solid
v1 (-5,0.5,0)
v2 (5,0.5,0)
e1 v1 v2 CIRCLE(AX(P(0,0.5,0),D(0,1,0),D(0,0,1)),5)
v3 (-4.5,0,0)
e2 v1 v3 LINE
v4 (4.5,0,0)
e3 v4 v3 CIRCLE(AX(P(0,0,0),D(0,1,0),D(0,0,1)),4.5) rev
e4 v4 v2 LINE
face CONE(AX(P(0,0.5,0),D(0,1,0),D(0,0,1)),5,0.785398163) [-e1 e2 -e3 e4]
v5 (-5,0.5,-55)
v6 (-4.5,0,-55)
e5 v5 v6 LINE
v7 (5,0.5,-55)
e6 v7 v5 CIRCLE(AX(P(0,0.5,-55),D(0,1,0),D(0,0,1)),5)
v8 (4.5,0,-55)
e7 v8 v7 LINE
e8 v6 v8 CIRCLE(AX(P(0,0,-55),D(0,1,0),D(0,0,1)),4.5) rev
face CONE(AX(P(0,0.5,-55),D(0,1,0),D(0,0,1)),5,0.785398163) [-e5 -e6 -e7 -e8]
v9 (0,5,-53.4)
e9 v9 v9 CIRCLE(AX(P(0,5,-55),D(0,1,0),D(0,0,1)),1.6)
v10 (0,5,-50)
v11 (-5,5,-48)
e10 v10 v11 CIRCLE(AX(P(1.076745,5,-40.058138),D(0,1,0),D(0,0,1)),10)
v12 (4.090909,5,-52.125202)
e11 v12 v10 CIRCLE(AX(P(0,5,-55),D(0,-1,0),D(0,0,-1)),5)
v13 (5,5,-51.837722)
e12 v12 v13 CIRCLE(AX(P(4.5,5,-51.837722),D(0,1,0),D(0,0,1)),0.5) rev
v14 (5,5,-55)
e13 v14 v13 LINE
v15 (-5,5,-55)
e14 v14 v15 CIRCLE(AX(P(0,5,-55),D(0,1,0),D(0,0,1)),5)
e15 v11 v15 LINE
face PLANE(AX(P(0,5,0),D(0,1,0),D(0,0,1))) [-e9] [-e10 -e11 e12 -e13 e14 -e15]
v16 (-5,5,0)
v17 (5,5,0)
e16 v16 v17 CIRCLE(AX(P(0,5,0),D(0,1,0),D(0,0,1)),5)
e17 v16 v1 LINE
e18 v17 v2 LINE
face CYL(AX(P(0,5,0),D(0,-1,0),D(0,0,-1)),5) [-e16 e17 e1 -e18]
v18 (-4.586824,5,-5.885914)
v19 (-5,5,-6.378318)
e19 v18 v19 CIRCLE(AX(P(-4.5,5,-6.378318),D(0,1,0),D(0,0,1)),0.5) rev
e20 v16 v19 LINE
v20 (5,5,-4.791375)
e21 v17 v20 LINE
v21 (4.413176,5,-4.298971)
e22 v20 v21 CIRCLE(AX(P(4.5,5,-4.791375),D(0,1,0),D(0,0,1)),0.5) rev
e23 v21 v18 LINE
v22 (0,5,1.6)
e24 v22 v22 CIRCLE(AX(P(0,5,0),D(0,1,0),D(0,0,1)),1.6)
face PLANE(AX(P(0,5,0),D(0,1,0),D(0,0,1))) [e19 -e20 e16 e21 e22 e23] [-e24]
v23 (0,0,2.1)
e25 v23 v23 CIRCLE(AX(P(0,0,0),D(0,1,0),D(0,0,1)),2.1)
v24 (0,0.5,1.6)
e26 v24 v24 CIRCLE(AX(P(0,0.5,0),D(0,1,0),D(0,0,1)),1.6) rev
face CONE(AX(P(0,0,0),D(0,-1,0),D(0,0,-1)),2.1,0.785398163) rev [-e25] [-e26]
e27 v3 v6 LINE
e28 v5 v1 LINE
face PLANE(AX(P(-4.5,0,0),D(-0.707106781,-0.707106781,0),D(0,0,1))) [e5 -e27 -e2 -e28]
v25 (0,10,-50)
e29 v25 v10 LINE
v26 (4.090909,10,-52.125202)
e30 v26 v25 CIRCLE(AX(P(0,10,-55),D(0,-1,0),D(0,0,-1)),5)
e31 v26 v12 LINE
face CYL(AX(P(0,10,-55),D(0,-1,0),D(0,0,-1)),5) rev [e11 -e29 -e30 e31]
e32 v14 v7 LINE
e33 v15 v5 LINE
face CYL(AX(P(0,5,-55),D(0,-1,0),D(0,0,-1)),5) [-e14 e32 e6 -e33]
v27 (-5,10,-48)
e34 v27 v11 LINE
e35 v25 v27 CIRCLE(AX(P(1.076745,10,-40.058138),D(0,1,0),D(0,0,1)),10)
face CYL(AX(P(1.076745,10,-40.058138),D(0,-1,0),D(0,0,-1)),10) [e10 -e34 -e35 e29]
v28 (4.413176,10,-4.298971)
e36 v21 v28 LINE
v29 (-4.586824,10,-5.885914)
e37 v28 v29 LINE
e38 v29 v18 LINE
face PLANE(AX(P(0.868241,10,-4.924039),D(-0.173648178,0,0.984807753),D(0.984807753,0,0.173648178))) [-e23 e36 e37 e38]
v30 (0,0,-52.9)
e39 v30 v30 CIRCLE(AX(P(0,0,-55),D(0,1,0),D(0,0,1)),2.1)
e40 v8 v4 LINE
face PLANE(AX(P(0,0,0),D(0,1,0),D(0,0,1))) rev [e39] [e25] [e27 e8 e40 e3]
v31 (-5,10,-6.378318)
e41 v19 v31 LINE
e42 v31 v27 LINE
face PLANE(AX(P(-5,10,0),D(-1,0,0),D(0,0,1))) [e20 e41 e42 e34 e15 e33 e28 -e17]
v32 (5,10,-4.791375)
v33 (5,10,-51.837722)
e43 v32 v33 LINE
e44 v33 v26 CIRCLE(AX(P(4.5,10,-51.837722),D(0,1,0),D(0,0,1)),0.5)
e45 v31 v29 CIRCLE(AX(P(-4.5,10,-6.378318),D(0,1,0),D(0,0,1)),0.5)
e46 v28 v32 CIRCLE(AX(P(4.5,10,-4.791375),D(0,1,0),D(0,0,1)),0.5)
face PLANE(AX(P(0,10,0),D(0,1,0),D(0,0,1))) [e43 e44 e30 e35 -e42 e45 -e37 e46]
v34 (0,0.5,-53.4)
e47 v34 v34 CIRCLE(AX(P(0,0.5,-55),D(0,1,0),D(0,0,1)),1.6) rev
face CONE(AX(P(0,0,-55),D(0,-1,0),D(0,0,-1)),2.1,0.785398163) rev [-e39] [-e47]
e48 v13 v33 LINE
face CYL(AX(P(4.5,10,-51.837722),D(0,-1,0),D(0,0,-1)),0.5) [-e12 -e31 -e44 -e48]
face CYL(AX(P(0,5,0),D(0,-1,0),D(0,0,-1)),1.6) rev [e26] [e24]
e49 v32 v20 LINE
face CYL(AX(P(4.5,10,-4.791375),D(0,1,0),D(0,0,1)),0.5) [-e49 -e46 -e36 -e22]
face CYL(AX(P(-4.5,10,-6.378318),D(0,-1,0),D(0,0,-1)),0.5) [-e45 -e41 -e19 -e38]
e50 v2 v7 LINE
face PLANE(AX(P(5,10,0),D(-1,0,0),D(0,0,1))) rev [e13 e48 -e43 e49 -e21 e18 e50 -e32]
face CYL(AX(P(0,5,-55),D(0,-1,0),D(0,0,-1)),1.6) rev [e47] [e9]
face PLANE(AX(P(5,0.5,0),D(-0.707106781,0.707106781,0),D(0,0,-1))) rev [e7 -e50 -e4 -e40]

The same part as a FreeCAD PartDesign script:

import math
import FreeCAD as App
import Part
import Sketcher

V = App.Vector
Q = App.Units.Quantity


def edges_at(feature, points):
    """Names of the edges that pass closest to the given points."""
    edges = feature.Shape.Edges
    near = lambda p: min(range(len(edges)), key=lambda i: edges[i].distToShape(Part.Vertex(*p))[0])
    return sorted({f"Edge{near(p) + 1}" for p in points})

doc = App.newDocument("Part")
params = doc.addObject("Spreadsheet::Sheet", "Params")
for row, (alias, value) in enumerate([
    ("sketch1_width", "10 mm"),
    ("pad1_length", "10 mm"),
    ("sketch2_radius", "5 mm"),
    ("sketch2_diameter", "3.2 mm"),
    ("sketch2_height", "8 mm"),
    ("pad2_length", "5 mm"),
    ("sketch3_radius", "5 mm"),
    ("sketch3_radius2", "10 mm"),
    ("sketch3_width", "10 mm"),
    ("sketch3_height", "8 mm"),
    ("sketch3_height2", "1 mm"),
    ("pad3_length", "5 mm"),
    ("fillet_radius", "0.5 mm"),
    ("chamfer_size", "0.5 mm"),
    ("fillet2_radius", "0.5 mm"),
], start=1):
    params.set(f"A{row}", alias)
    params.set(f"B{row}", "=" + value)
    params.setAlias(f"B{row}", alias)

body = doc.addObject("PartDesign::Body", "Body")

# Sketch on XZ plane
sketch1 = body.newObject("Sketcher::SketchObject", "Sketch")
sketch1.AttachmentSupport = (doc.getObject("XZ_Plane"), [""])
sketch1.MapMode = "FlatFace"
sketch1.addGeometry(Part.LineSegment(V(-5, -47, 0), V(-5, -6, 0)), False)
sketch1.addGeometry(Part.LineSegment(V(-5, -6, 0), V(5, -4, 0)), False)
sketch1.addGeometry(Part.LineSegment(V(5, -4, 0), V(5, -47, 0)), False)
sketch1.addGeometry(Part.LineSegment(V(5, -47, 0), V(-5, -47, 0)), False)
sketch1.addConstraint(Sketcher.Constraint("Coincident", 0, 2, 1, 1))
sketch1.addConstraint(Sketcher.Constraint("Coincident", 1, 2, 2, 1))
sketch1.addConstraint(Sketcher.Constraint("Coincident", 2, 2, 3, 1))
sketch1.addConstraint(Sketcher.Constraint("Coincident", 3, 2, 0, 1))
sketch1.addConstraint(Sketcher.Constraint("Vertical", 0))
sketch1.addConstraint(Sketcher.Constraint("Vertical", 2))
sketch1.addConstraint(Sketcher.Constraint("Horizontal", 3))
sketch1.addConstraint(Sketcher.Constraint("DistanceX", 3, 2, 3, 1, Q("10 mm")))
sketch1.addConstraint(Sketcher.Constraint("Angle", 1, Q("10 deg")))
sketch1.addConstraint(Sketcher.Constraint("DistanceX", 0, 2, -1, 1, Q("5 mm")))
sketch1.addConstraint(Sketcher.Constraint("DistanceY", 2, 2, -1, 1, Q("47 mm")))
sketch1.addConstraint(Sketcher.Constraint("DistanceY", 2, 2, 2, 1, Q("42.804502 mm")))
sketch1.setExpression("Constraints[7]", "Params.sketch1_width")
pad1 = body.newObject("PartDesign::Pad", "Pad")
pad1.Profile = sketch1
pad1.setExpression("Length", "Params.pad1_length")
pad1.Reversed = True

# Sketch on XZ plane
sketch2 = body.newObject("Sketcher::SketchObject", "Sketch001")
sketch2.AttachmentSupport = (doc.getObject("XZ_Plane"), [""])
sketch2.MapMode = "FlatFace"
sketch2.addGeometry(Part.LineSegment(V(-5, -6, 0), V(-5, 0, 0)), False)
sketch2.addGeometry(Part.ArcOfCircle(Part.Circle(V(0, 0, 0), V(0, 0, 1), 5), math.radians(0), math.radians(180)), False)
sketch2.addGeometry(Part.LineSegment(V(5, 0, 0), V(5, -4.2, 0)), False)
sketch2.addGeometry(Part.LineSegment(V(5, -4.2, 0), V(-5, -6, 0)), False)
sketch2.addGeometry(Part.Circle(V(0, 0, 0), V(0, 0, 1), 1.6), False)
sketch2.addGeometry(Part.LineSegment(V(-5, -47, 0), V(5, -47, 0)), False)
sketch2.addGeometry(Part.LineSegment(V(5, -47, 0), V(5, -55, 0)), False)
sketch2.addGeometry(Part.ArcOfCircle(Part.Circle(V(0, -55, 0), V(0, 0, 1), 5), math.radians(180), math.radians(360)), False)
sketch2.addGeometry(Part.LineSegment(V(-5, -55, 0), V(-5, -47, 0)), False)
sketch2.addGeometry(Part.Circle(V(0, -55, 0), V(0, 0, 1), 1.6), False)
sketch2.addConstraint(Sketcher.Constraint("Tangent", 0, 2, 1, 2))
sketch2.addConstraint(Sketcher.Constraint("Tangent", 1, 1, 2, 1))
sketch2.addConstraint(Sketcher.Constraint("Coincident", 2, 2, 3, 1))
sketch2.addConstraint(Sketcher.Constraint("Coincident", 3, 2, 0, 1))
sketch2.addConstraint(Sketcher.Constraint("Coincident", 5, 2, 6, 1))
sketch2.addConstraint(Sketcher.Constraint("Tangent", 6, 2, 7, 2))
sketch2.addConstraint(Sketcher.Constraint("Tangent", 7, 1, 8, 1))
sketch2.addConstraint(Sketcher.Constraint("Coincident", 8, 2, 5, 1))
sketch2.addConstraint(Sketcher.Constraint("Vertical", 0))
sketch2.addConstraint(Sketcher.Constraint("Vertical", 2))
sketch2.addConstraint(Sketcher.Constraint("Horizontal", 5))
sketch2.addConstraint(Sketcher.Constraint("Vertical", 6))
sketch2.addConstraint(Sketcher.Constraint("Vertical", 8))
sketch2.addConstraint(Sketcher.Constraint("Coincident", 1, 3, -1, 1))
sketch2.addConstraint(Sketcher.Constraint("Coincident", 4, 3, -1, 1))
sketch2.addConstraint(Sketcher.Constraint("Coincident", 9, 3, 7, 3))
sketch2.addConstraint(Sketcher.Constraint("Equal", 1, 7))
sketch2.addConstraint(Sketcher.Constraint("Equal", 4, 9))
sketch2.addConstraint(Sketcher.Constraint("PointOnObject", 7, 3, -2))
sketch2.addConstraint(Sketcher.Constraint("Radius", 1, Q("5 mm")))
sketch2.addConstraint(Sketcher.Constraint("Diameter", 4, Q("3.2 mm")))
sketch2.addConstraint(Sketcher.Constraint("DistanceY", 6, 2, 6, 1, Q("8 mm")))
sketch2.addConstraint(Sketcher.Constraint("Angle", 3, Q("-170 deg")))
sketch2.addConstraint(Sketcher.Constraint("DistanceY", 7, 3, -1, 1, Q("55 mm")))
sketch2.addConstraint(Sketcher.Constraint("DistanceY", 2, 2, 2, 1, Q("4.195498 mm")))
sketch2.setExpression("Constraints[19]", "Params.sketch2_radius")
sketch2.setExpression("Constraints[20]", "Params.sketch2_diameter")
sketch2.setExpression("Constraints[21]", "Params.sketch2_height")
pad2 = body.newObject("PartDesign::Pad", "Pad001")
pad2.Profile = sketch2
pad2.setExpression("Length", "Params.pad2_length")
pad2.Reversed = True

# Sketch on XZ plane
sketch3 = body.newObject("Sketcher::SketchObject", "Sketch002")
sketch3.AttachmentSupport = (doc.getObject("XZ_Plane"), [""])
sketch3.MapMode = "FlatFace"
sketch3.AttachmentOffset = App.Placement(V(0, 0, -5), App.Rotation())
sketch3.addGeometry(Part.LineSegment(V(-5, -47, 0), V(5, -47, 0)), False)
sketch3.addGeometry(Part.LineSegment(V(5, -47, 0), V(5, -55, 0)), False)
sketch3.addGeometry(Part.ArcOfCircle(Part.Circle(V(0, -55, 0), V(0, 0, 1), 5), math.radians(0), math.radians(90)), False)
sketch3.addGeometry(Part.ArcOfCircle(Part.Circle(V(1.1, -40.1, 0), V(0, 0, 1), 10), math.radians(-127), math.radians(-96)), False)
sketch3.addGeometry(Part.LineSegment(V(-5, -48, 0), V(-5, -47, 0)), False)
sketch3.addConstraint(Sketcher.Constraint("Coincident", 0, 2, 1, 1))
sketch3.addConstraint(Sketcher.Constraint("Tangent", 1, 2, 2, 1))
sketch3.addConstraint(Sketcher.Constraint("Coincident", 2, 2, 3, 2))
sketch3.addConstraint(Sketcher.Constraint("Coincident", 3, 1, 4, 1))
sketch3.addConstraint(Sketcher.Constraint("Coincident", 4, 2, 0, 1))
sketch3.addConstraint(Sketcher.Constraint("Horizontal", 0))
sketch3.addConstraint(Sketcher.Constraint("Vertical", 1))
sketch3.addConstraint(Sketcher.Constraint("Vertical", 4))
sketch3.addConstraint(Sketcher.Constraint("PointOnObject", 2, 3, -2))
sketch3.addConstraint(Sketcher.Constraint("PointOnObject", 2, 2, -2))
sketch3.addConstraint(Sketcher.Constraint("Radius", 2, Q("5 mm")))
sketch3.addConstraint(Sketcher.Constraint("Radius", 3, Q("10 mm")))
sketch3.addConstraint(Sketcher.Constraint("DistanceX", 0, 1, 0, 2, Q("10 mm")))
sketch3.addConstraint(Sketcher.Constraint("DistanceY", 1, 2, 1, 1, Q("8 mm")))
sketch3.addConstraint(Sketcher.Constraint("DistanceY", 4, 1, 4, 2, Q("1 mm")))
sketch3.addConstraint(Sketcher.Constraint("DistanceY", 2, 3, -1, 1, Q("55 mm")))
sketch3.setExpression("Constraints[10]", "Params.sketch3_radius")
sketch3.setExpression("Constraints[11]", "Params.sketch3_radius2")
sketch3.setExpression("Constraints[12]", "Params.sketch3_width")
sketch3.setExpression("Constraints[13]", "Params.sketch3_height")
sketch3.setExpression("Constraints[14]", "Params.sketch3_height2")
pad3 = body.newObject("PartDesign::Pad", "Pad002")
pad3.Profile = sketch3
pad3.setExpression("Length", "Params.pad3_length")
pad3.Reversed = True
doc.recompute()

fillet = body.newObject("PartDesign::Fillet", "Fillet")
fillet.Base = (pad3, edges_at(pad3, [(5, 7.5, -4.195), (-5, 7.5, -5.959)]))
fillet.setExpression("Radius", "Params.fillet_radius")
doc.recompute()

chamfer = body.newObject("PartDesign::Chamfer", "Chamfer")
chamfer.Base = (fillet, edges_at(fillet, [
    (0, 0, 5),
    (0, 0, -1.6),
    (0, 0, -60),
    (0, 0, -56.6),
    (5, 0, -27.5),
    (-5, 0, -27.5),
]))
chamfer.setExpression("Size", "Params.chamfer_size")
doc.recompute()

fillet2 = body.newObject("PartDesign::Fillet", "Fillet001")
fillet2.Base = (chamfer, edges_at(chamfer, [(5, 7.5, -55)]))
fillet2.setExpression("Radius", "Params.fillet2_radius")

doc.recompute()
